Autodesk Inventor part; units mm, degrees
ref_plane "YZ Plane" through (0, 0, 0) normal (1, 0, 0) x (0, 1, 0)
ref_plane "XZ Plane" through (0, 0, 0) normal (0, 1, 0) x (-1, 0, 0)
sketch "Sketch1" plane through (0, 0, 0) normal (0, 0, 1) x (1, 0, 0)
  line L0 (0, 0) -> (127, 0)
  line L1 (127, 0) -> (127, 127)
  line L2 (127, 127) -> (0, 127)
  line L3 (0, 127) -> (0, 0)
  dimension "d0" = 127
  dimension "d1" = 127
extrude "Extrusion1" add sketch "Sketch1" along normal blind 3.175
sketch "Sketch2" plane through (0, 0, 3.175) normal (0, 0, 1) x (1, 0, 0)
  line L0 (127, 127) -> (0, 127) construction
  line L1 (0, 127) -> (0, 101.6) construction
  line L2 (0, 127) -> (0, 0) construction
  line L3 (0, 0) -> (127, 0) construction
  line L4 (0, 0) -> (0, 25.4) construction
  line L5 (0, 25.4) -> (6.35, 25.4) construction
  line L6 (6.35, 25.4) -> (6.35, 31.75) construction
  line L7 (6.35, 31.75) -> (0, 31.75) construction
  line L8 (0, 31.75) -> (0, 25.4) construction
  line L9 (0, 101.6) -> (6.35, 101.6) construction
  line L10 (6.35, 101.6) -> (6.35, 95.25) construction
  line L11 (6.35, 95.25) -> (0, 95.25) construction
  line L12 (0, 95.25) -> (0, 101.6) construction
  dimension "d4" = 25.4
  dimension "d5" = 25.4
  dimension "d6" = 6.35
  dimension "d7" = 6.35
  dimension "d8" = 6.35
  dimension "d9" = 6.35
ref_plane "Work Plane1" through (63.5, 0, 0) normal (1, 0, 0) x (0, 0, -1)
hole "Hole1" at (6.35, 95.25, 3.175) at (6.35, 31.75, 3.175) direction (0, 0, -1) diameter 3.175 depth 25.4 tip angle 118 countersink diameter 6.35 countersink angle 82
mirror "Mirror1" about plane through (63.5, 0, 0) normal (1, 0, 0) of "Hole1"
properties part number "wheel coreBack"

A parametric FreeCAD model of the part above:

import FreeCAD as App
import Part
import Sketcher
Q = App.Units.Quantity


def add_polygon(sketch, points):
    """Adds a closed chain of lines whose ends are joined by coincident constraints."""
    first, n = sketch.GeometryCount, len(points)
    for a, b in zip(points, points[1:] + points[:1]):
        sketch.addGeometry(Part.LineSegment(App.Vector(*a, 0), App.Vector(*b, 0)), False)
    for i in range(n):
        sketch.addConstraint(Sketcher.Constraint("Coincident", first + i, 2, first + (i + 1) % n, 1))

doc = App.newDocument("Part")
body = doc.addObject("PartDesign::Body", "Body")

# Sketch on XY plane
sketch1 = doc.addObject("Sketcher::SketchObject", "Sketch")
body.addObject(sketch1)
sketch1.AttachmentSupport = (doc.XY_Plane, [""])
sketch1.MapMode = "FlatFace"
add_polygon(sketch1, [(0, 127), (0, 0), (127, 0), (127, 127)])  # lines 0-3
sketch1.addConstraint(Sketcher.Constraint("Vertical", 0))
sketch1.addConstraint(Sketcher.Constraint("Horizontal", 1))
sketch1.addConstraint(Sketcher.Constraint("Vertical", 2))
sketch1.addConstraint(Sketcher.Constraint("Horizontal", 3))
sketch1.addConstraint(Sketcher.Constraint("Coincident", 0, 2, -1, 1))
sketch1.addConstraint(Sketcher.Constraint("Equal", 3, 0))
sketch1.addConstraint(Sketcher.Constraint("DistanceX", 1, 1, 1, 2, Q("5 in")))
pad1 = doc.addObject("PartDesign::Pad", "Pad")
body.addObject(pad1)
pad1.Profile = sketch1
pad1.Length = Q("0.125 in")

# Sketch on XY plane
sketch2 = doc.addObject("Sketcher::SketchObject", "Sketch001")
body.addObject(sketch2)
sketch2.AttachmentSupport = (doc.XY_Plane, [""])
sketch2.MapMode = "FlatFace"
sketch2.AttachmentOffset = App.Placement(App.Vector(0, 0, 0.125 * 25.4), App.Rotation())
sketch2.addGeometry(Part.Circle(App.Vector(6.3, 95.2, 0), App.Vector(0, 0, 1), 1.6), False)
sketch2.addGeometry(Part.Circle(App.Vector(6.3, 31.8, 0), App.Vector(0, 0, 1), 1.6), False)
sketch2.addConstraint(Sketcher.Constraint("Equal", 0, 1))
sketch2.addConstraint(Sketcher.Constraint("Vertical", 0, 3, 1, 3))
sketch2.addConstraint(Sketcher.Constraint("Diameter", 0, Q("0.125 in")))
sketch2.addConstraint(Sketcher.Constraint("DistanceY", 1, 3, 0, 3, Q("2.5 in")))
sketch2.addConstraint(Sketcher.Constraint("DistanceX", -1, 1, 0, 3, Q("0.25 in")))
sketch2.addConstraint(Sketcher.Constraint("DistanceY", -1, 1, 0, 3, Q("3.75 in")))
doc.recompute()
hole = doc.addObject("PartDesign::Hole", "Hole")
body.addObject(hole)
hole.Profile = sketch2
hole.ThreadType = "None"
hole.Diameter = Q("0.125 in")
hole.DepthType = "Dimension"
hole.Depth = Q("1 in")
hole.DrillPoint = "Angled"
hole.DrillPointAngle = 118
hole.HoleCutType = "Countersink"
hole.HoleCutDiameter = Q("0.25 in")
hole.HoleCutCountersinkAngle = 82
doc.recompute()

datumplane = doc.addObject("PartDesign::Plane", "DatumPlane")
body.addObject(datumplane)
datumplane.AttachmentSupport = (doc.YZ_Plane, [""])
datumplane.MapMode = "FlatFace"
datumplane.AttachmentOffset = App.Placement(App.Vector(0, 0, 2.5 * 25.4), App.Rotation())
mirrored = doc.addObject("PartDesign::Mirrored", "Mirrored")
body.addObject(mirrored)
mirrored.Originals = [hole]
mirrored.MirrorPlane = (datumplane, [""])
body.Tip = mirrored

doc.recompute()
